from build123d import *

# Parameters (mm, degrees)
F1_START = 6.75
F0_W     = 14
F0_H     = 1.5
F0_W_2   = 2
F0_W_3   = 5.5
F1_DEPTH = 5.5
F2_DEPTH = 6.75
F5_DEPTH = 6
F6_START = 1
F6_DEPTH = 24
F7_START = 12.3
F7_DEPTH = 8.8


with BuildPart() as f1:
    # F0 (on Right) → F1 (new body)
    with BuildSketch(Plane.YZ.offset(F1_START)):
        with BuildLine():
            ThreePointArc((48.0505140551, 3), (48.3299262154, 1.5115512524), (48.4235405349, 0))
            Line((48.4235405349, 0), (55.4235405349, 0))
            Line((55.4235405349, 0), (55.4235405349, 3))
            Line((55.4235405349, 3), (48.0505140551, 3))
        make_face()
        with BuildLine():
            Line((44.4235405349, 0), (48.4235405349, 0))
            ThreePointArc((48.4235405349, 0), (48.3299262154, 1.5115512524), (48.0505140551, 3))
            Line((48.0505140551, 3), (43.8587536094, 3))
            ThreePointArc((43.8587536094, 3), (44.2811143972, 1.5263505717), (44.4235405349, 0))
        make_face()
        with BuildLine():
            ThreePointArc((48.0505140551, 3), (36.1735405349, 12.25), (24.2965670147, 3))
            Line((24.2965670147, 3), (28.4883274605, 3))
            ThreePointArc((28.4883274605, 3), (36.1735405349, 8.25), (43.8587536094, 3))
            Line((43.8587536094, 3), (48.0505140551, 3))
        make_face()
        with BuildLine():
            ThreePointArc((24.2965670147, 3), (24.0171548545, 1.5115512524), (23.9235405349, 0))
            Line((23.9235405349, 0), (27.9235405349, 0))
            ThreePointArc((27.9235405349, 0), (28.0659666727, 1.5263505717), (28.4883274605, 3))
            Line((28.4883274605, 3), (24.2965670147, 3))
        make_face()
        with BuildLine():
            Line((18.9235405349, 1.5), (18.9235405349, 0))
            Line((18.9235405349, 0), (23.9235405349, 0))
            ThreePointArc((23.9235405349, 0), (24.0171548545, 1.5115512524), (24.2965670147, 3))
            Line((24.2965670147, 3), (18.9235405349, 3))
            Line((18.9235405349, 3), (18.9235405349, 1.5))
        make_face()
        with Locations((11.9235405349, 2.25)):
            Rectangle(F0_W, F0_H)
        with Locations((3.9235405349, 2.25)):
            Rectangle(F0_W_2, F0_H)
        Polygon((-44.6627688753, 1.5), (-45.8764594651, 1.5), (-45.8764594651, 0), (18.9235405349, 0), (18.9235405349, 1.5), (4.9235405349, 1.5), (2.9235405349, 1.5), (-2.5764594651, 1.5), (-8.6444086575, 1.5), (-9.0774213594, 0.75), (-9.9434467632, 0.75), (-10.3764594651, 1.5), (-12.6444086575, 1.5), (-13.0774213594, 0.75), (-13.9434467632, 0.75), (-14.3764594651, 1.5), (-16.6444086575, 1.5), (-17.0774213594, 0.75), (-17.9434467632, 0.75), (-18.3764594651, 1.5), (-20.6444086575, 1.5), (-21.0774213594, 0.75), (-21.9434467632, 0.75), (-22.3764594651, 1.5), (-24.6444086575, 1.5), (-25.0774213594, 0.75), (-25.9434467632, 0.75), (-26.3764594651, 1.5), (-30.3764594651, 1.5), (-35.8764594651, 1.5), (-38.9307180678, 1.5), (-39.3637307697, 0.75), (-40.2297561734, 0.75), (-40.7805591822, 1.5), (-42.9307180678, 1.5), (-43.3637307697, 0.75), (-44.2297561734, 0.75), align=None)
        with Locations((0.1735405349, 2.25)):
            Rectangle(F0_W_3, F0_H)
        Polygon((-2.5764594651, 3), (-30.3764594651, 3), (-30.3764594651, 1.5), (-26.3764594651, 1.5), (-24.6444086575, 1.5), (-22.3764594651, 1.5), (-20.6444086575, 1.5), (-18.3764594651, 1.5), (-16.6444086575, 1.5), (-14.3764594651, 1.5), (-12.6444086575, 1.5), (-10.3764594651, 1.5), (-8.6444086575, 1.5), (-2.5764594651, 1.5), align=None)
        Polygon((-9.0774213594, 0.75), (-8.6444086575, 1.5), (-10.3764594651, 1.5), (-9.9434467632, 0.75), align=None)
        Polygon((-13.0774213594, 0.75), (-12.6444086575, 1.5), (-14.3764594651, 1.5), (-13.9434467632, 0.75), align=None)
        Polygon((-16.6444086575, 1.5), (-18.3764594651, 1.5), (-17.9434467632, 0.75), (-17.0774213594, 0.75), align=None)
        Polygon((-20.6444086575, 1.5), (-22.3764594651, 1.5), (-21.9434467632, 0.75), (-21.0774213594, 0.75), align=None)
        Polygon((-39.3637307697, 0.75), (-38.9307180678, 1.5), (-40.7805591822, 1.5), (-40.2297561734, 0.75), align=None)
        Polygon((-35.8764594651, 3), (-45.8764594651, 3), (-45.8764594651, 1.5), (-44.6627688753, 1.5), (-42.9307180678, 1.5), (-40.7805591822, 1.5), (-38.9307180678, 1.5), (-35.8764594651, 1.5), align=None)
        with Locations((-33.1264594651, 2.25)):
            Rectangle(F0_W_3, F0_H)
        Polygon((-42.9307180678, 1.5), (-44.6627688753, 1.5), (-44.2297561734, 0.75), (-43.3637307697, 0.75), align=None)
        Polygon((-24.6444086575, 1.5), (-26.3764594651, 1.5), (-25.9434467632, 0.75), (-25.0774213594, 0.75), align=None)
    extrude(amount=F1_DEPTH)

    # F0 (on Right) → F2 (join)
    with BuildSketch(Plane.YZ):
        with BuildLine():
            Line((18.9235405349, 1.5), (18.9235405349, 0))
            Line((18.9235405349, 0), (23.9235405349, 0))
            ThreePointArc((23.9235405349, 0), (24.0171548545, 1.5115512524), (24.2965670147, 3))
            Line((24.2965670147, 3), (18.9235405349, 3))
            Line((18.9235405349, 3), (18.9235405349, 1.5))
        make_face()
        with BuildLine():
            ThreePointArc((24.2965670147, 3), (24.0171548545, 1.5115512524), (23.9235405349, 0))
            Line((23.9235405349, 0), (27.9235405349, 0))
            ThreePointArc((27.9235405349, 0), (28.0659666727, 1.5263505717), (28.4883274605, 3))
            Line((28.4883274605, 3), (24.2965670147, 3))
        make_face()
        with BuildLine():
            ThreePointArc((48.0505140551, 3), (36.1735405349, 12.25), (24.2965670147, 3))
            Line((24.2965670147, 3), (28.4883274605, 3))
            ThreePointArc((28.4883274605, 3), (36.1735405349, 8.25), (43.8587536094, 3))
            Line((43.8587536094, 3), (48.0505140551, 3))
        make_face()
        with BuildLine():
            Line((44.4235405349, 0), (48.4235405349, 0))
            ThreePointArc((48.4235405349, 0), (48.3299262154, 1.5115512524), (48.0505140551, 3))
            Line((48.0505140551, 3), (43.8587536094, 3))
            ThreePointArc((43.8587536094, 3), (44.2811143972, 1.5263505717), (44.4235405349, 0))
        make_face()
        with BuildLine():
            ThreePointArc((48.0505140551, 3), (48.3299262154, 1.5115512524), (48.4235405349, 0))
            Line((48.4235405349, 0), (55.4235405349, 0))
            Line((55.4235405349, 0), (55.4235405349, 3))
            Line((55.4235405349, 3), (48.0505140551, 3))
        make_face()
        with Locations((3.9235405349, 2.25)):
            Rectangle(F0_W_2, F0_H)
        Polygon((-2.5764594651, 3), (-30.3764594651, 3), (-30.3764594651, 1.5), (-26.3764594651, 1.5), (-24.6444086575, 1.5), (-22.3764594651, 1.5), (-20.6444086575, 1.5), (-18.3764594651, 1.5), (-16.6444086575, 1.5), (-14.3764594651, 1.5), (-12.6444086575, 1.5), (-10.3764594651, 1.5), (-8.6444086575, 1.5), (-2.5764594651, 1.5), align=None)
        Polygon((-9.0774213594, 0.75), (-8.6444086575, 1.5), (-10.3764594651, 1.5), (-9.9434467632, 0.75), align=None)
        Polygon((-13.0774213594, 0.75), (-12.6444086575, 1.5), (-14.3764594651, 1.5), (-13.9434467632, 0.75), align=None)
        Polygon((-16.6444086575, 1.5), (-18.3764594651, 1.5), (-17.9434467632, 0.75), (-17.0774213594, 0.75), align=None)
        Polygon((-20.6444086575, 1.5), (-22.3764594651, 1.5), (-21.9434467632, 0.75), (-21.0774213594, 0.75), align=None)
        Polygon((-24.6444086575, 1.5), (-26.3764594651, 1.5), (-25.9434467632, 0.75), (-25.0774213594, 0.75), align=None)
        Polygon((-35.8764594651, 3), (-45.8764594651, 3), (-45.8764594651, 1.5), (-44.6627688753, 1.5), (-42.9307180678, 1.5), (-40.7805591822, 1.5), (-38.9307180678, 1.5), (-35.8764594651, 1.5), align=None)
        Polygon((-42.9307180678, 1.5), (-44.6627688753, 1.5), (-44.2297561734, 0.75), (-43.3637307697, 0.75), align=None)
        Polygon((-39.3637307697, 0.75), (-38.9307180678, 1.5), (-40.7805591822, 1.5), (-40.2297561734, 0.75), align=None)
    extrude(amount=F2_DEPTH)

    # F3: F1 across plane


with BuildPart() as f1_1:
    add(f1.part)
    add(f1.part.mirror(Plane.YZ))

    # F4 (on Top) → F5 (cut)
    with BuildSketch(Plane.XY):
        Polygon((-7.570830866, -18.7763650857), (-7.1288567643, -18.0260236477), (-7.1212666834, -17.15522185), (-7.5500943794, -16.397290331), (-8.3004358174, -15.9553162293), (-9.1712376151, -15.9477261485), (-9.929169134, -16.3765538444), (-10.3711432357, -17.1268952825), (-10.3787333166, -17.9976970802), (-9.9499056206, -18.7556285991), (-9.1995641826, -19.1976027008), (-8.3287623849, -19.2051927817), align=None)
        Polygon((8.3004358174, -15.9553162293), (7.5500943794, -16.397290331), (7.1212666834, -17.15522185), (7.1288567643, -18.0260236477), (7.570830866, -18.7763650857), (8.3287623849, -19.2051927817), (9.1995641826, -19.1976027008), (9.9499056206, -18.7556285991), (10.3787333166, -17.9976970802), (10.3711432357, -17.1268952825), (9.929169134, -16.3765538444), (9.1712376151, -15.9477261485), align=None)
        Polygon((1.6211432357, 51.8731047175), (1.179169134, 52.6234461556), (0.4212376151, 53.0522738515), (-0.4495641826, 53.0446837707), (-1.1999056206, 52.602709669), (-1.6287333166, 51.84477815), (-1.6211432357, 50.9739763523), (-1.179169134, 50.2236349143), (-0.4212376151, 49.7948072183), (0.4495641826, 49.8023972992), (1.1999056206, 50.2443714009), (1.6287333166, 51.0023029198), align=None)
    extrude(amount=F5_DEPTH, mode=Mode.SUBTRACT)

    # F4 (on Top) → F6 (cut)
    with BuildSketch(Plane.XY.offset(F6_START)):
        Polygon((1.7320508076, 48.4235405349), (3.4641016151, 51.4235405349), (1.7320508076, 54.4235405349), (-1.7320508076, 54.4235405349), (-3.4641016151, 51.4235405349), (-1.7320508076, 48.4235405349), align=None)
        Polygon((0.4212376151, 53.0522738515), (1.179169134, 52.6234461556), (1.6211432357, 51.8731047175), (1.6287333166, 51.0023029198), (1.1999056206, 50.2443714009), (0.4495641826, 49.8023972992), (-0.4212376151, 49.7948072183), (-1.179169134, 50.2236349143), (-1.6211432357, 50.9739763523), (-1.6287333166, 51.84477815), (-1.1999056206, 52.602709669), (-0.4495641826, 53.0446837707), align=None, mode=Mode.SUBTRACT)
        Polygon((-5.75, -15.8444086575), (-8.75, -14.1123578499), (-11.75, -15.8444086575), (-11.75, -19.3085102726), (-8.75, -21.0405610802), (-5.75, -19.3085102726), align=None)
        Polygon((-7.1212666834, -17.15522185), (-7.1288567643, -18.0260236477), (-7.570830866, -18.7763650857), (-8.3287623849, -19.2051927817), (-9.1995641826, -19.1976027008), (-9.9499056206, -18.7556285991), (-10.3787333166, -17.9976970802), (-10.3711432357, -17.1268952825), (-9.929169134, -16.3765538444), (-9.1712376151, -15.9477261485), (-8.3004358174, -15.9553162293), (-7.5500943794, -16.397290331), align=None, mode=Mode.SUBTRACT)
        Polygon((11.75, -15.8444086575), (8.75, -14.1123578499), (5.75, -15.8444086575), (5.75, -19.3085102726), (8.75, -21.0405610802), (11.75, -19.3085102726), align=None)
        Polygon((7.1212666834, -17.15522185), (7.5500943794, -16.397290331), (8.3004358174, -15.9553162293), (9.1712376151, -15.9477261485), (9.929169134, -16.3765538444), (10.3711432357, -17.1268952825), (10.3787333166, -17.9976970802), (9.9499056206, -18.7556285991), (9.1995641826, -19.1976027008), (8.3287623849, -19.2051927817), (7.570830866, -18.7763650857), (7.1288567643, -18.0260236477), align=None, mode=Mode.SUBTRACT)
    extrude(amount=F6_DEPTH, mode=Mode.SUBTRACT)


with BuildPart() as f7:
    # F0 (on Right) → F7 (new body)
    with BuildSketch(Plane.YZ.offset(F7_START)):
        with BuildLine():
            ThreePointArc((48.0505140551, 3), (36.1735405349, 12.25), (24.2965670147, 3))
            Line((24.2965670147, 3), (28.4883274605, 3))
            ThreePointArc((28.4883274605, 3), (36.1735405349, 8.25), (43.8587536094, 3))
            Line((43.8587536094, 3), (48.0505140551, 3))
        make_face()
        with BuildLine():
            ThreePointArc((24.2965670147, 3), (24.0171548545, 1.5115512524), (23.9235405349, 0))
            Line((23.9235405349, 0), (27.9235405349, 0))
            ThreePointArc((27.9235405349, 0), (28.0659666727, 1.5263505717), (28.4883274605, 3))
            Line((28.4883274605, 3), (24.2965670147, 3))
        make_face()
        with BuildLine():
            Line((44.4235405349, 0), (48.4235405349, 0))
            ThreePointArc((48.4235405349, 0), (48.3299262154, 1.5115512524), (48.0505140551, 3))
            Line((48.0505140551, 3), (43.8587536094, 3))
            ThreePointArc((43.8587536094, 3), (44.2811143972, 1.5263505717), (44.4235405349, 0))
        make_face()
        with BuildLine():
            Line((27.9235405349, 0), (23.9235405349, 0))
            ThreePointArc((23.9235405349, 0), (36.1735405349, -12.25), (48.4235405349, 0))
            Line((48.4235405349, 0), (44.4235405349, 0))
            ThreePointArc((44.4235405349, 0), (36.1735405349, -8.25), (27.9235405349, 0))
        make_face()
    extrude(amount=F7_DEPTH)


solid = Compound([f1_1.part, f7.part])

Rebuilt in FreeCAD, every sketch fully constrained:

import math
import FreeCAD as App
import Part
import Sketcher
from FreeCAD import Vector
Q = App.Units.Quantity


def add_polygon(sketch, points):
    """Adds a closed chain of lines whose ends are joined by coincident constraints."""
    first, n = sketch.GeometryCount, len(points)
    for a, b in zip(points, points[1:] + points[:1]):
        sketch.addGeometry(Part.LineSegment(App.Vector(*a, 0), App.Vector(*b, 0)), False)
    for i in range(n):
        sketch.addConstraint(Sketcher.Constraint("Coincident", first + i, 2, first + (i + 1) % n, 1))

doc = App.newDocument("Part")
body = doc.addObject("PartDesign::Body", "Body")

# Sketch on YZ plane
sketch1 = body.newObject("Sketcher::SketchObject", "Sketch")
sketch1.AttachmentSupport = (doc.getObject("YZ_Plane"), [""])
sketch1.MapMode = "FlatFace"
sketch1.AttachmentOffset = App.Placement(Vector(0, 0, 6.75), App.Rotation())
sketch1.addGeometry([
    Part.LineSegment(Vector(55.4, 0, 0), Vector(55.4, 3, 0)),  # 0
    Part.LineSegment(Vector(55.4, 3, 0), Vector(48.1, 3, 0)),  # 1
    Part.ArcOfCircle(Part.Circle(Vector(36.2, 0, 0), Vector(0, 0, 1), 12.2), math.radians(14), math.radians(166)),  # 2
    Part.LineSegment(Vector(24.3, 3, 0), Vector(-45.9, 3, 0)),  # 3
    Part.LineSegment(Vector(-45.9, 3, 0), Vector(-45.9, 0, 0)),  # 4
    Part.LineSegment(Vector(-45.9, 0, 0), Vector(27.9, 0, 0)),  # 5
    Part.ArcOfCircle(Part.Circle(Vector(36.2, 0, 0), Vector(0, 0, 1), 8.3), math.radians(159), math.radians(180)),  # 6
    Part.ArcOfCircle(Part.Circle(Vector(36.2, 0, 0), Vector(0, 0, 1), 8.2), math.radians(21), math.radians(159)),  # 7
    Part.ArcOfCircle(Part.Circle(Vector(36.2, 0, 0), Vector(0, 0, 1), 8.2), math.radians(0), math.radians(21)),  # 8
    Part.LineSegment(Vector(44.4, 0, 0), Vector(55.4, 0, 0)),  # 9
], False)
sketch1.addConstraint([
    Sketcher.Constraint("Coincident", 0, 2, 1, 1),
    Sketcher.Constraint("Coincident", 1, 2, 2, 1),
    Sketcher.Constraint("Coincident", 2, 2, 3, 1),
    Sketcher.Constraint("Coincident", 3, 2, 4, 1),
    Sketcher.Constraint("Coincident", 4, 2, 5, 1),
    Sketcher.Constraint("Coincident", 5, 2, 6, 2),
    Sketcher.Constraint("Tangent", 6, 1, 7, 2),
    Sketcher.Constraint("Tangent", 7, 1, 8, 2),
    Sketcher.Constraint("Coincident", 8, 1, 9, 1),
    Sketcher.Constraint("Coincident", 9, 2, 0, 1),
    Sketcher.Constraint("Vertical", 0),
    Sketcher.Constraint("Horizontal", 1),
    Sketcher.Constraint("Horizontal", 3),
    Sketcher.Constraint("Vertical", 4),
    Sketcher.Constraint("Horizontal", 5),
    Sketcher.Constraint("Horizontal", 9),
    Sketcher.Constraint("Coincident", 6, 3, 2, 3),
    Sketcher.Constraint("Coincident", 8, 3, 2, 3),
    Sketcher.Constraint("PointOnObject", 2, 3, -1),
    Sketcher.Constraint("PointOnObject", 4, 2, -1),
    Sketcher.Constraint("PointOnObject", 8, 1, -1),
    Sketcher.Constraint("Horizontal", 1, 2, 2, 2),
    Sketcher.Constraint("Horizontal", 3, 2, 6, 1),
    Sketcher.Constraint("Horizontal", 6, 1, 7, 1),
    Sketcher.Constraint("DistanceX", 9, 1, 9, 2, Q("11 mm")),
    Sketcher.Constraint("DistanceY", 0, 1, 0, 2, Q("3 mm")),
    Sketcher.Constraint("Radius", 2, Q("12.25 mm")),
    Sketcher.Constraint("Radius", 6, Q("8.25 mm")),
    Sketcher.Constraint("DistanceX", 5, 1, 5, 2, Q("73.8 mm")),
    Sketcher.Constraint("DistanceX", -1, 1, 2, 3, Q("36.173541 mm")),
])
pad1 = body.newObject("PartDesign::Pad", "Pad")
pad1.Profile = sketch1
pad1.Length = 5.5

# Sketch on YZ plane
sketch2 = body.newObject("Sketcher::SketchObject", "Sketch001")
sketch2.AttachmentSupport = (doc.getObject("YZ_Plane"), [""])
sketch2.MapMode = "FlatFace"
sketch2.addGeometry(Part.LineSegment(Vector(18.9, 0, 0), Vector(27.9, 0, 0)), False)  # 0
sketch2.addGeometry(Part.ArcOfCircle(Part.Circle(Vector(36.2, 0, 0), Vector(0, 0, 1), 8.3), math.radians(159), math.radians(180)), False)  # 1
sketch2.addGeometry(Part.ArcOfCircle(Part.Circle(Vector(36.2, 0, 0), Vector(0, 0, 1), 8.2), math.radians(21), math.radians(159)), False)  # 2
sketch2.addGeometry(Part.ArcOfCircle(Part.Circle(Vector(36.2, 0, 0), Vector(0, 0, 1), 8.2), math.radians(0), math.radians(21)), False)  # 3
sketch2.addGeometry(Part.LineSegment(Vector(44.4, 0, 0), Vector(55.4, 0, 0)), False)  # 4
sketch2.addGeometry(Part.LineSegment(Vector(55.4, 0, 0), Vector(55.4, 3, 0)), False)  # 5
sketch2.addGeometry(Part.LineSegment(Vector(55.4, 3, 0), Vector(48.1, 3, 0)), False)  # 6
sketch2.addGeometry(Part.ArcOfCircle(Part.Circle(Vector(36.2, 0, 0), Vector(0, 0, 1), 12.2), math.radians(14), math.radians(166)), False)  # 7
sketch2.addGeometry(Part.LineSegment(Vector(24.3, 3, 0), Vector(18.9, 3, 0)), False)  # 8
sketch2.addGeometry(Part.LineSegment(Vector(18.9, 3, 0), Vector(18.9, 0, 0)), False)  # 9
add_polygon(sketch2, [(2.9, 3), (2.9, 1.5), (4.9, 1.5), (4.9, 3)])  # lines 10-13
add_polygon(sketch2, [(-2.6, 3), (-30.4, 3), (-30.4, 1.5), (-26.4, 1.5), (-25.9, 0.8), (-25.1, 0.8), (-24.6, 1.5), (-22.4, 1.5), (-21.9, 0.8), (-21.1, 0.8), (-20.6, 1.5), (-18.4, 1.5), (-17.9, 0.8), (-17.1, 0.8), (-16.6, 1.5), (-14.4, 1.5), (-13.9, 0.8), (-13.1, 0.8), (-12.6, 1.5), (-10.4, 1.5), (-9.9, 0.8), (-9.1, 0.8), (-8.6, 1.5), (-2.6, 1.5)])  # lines 14-37
add_polygon(sketch2, [(-35.9, 3), (-45.9, 3), (-45.9, 1.5), (-44.7, 1.5), (-44.2, 0.8), (-43.4, 0.8), (-42.9, 1.5), (-40.8, 1.5), (-40.2, 0.8), (-39.4, 0.8), (-38.9, 1.5), (-35.9, 1.5)])  # lines 38-49
sketch2.addConstraint([
    Sketcher.Constraint("Coincident", 0, 2, 1, 2),
    Sketcher.Constraint("Tangent", 1, 1, 2, 2),
    Sketcher.Constraint("Tangent", 2, 1, 3, 2),
    Sketcher.Constraint("Coincident", 3, 1, 4, 1),
    Sketcher.Constraint("Coincident", 4, 2, 5, 1),
    Sketcher.Constraint("Coincident", 5, 2, 6, 1),
    Sketcher.Constraint("Coincident", 6, 2, 7, 1),
    Sketcher.Constraint("Coincident", 7, 2, 8, 1),
    Sketcher.Constraint("Coincident", 8, 2, 9, 1),
    Sketcher.Constraint("Coincident", 9, 2, 0, 1),
    Sketcher.Constraint("Horizontal", 0),
    Sketcher.Constraint("Horizontal", 4),
    Sketcher.Constraint("Vertical", 5),
    Sketcher.Constraint("Horizontal", 6),
    Sketcher.Constraint("Horizontal", 8),
    Sketcher.Constraint("Vertical", 9),
    Sketcher.Constraint("Vertical", 10),
    Sketcher.Constraint("Horizontal", 11),
    Sketcher.Constraint("Vertical", 12),
    Sketcher.Constraint("Horizontal", 13),
    Sketcher.Constraint("Horizontal", 14),
    Sketcher.Constraint("Vertical", 15),
    Sketcher.Constraint("Horizontal", 16),
    Sketcher.Constraint("Horizontal", 18),
    Sketcher.Constraint("Horizontal", 20),
    Sketcher.Constraint("Horizontal", 22),
    Sketcher.Constraint("Horizontal", 24),
    Sketcher.Constraint("Horizontal", 26),
    Sketcher.Constraint("Horizontal", 28),
    Sketcher.Constraint("Horizontal", 30),
    Sketcher.Constraint("Horizontal", 32),
    Sketcher.Constraint("Horizontal", 34),
    Sketcher.Constraint("Horizontal", 36),
    Sketcher.Constraint("Vertical", 37),
    Sketcher.Constraint("Horizontal", 38),
    Sketcher.Constraint("Vertical", 39),
    Sketcher.Constraint("Horizontal", 40),
    Sketcher.Constraint("Horizontal", 42),
    Sketcher.Constraint("Horizontal", 44),
    Sketcher.Constraint("Horizontal", 46),
    Sketcher.Constraint("Horizontal", 48),
    Sketcher.Constraint("Vertical", 49),
    Sketcher.Constraint("Coincident", 3, 3, 1, 3),
    Sketcher.Constraint("Coincident", 7, 3, 1, 3),
    Sketcher.Constraint("PointOnObject", 1, 3, -1),
    Sketcher.Constraint("PointOnObject", 0, 2, -1),
    Sketcher.Constraint("PointOnObject", 3, 1, -1),
    Sketcher.Constraint("Parallel", 17, 21),
    Sketcher.Constraint("Parallel", 19, 23),
    Sketcher.Constraint("Parallel", 21, 25),
    Sketcher.Constraint("Parallel", 23, 27),
    Sketcher.Constraint("Parallel", 25, 29),
    Sketcher.Constraint("Parallel", 27, 31),
    Sketcher.Constraint("Parallel", 29, 33),
    Sketcher.Constraint("Parallel", 31, 35),
    Sketcher.Constraint("Parallel", 33, 41),
    Sketcher.Constraint("Parallel", 35, 43),
    Sketcher.Constraint("Parallel", 43, 47),
    Sketcher.Constraint("Horizontal", 1, 1, 2, 1),
    Sketcher.Constraint("Horizontal", 2, 1, 5, 2),
    Sketcher.Constraint("Horizontal", 6, 2, 7, 2),
    Sketcher.Constraint("Horizontal", 8, 2, 12, 2),
    Sketcher.Constraint("Horizontal", 13, 2, 14, 2),
    Sketcher.Constraint("Horizontal", 11, 2, 15, 2),
    Sketcher.Constraint("Horizontal", 16, 2, 19, 2),
    Sketcher.Constraint("Horizontal", 18, 2, 21, 2),
    Sketcher.Constraint("Horizontal", 20, 2, 23, 2),
    Sketcher.Constraint("Horizontal", 22, 2, 25, 2),
    Sketcher.Constraint("Horizontal", 24, 2, 27, 2),
    Sketcher.Constraint("Horizontal", 26, 2, 29, 2),
    Sketcher.Constraint("Horizontal", 28, 2, 31, 2),
    Sketcher.Constraint("Horizontal", 30, 2, 33, 2),
    Sketcher.Constraint("Horizontal", 32, 2, 35, 2),
    Sketcher.Constraint("Horizontal", 37, 2, 38, 2),
    Sketcher.Constraint("Horizontal", 36, 2, 39, 2),
    Sketcher.Constraint("Horizontal", 34, 2, 41, 2),
    Sketcher.Constraint("Horizontal", 40, 2, 43, 2),
    Sketcher.Constraint("Horizontal", 42, 2, 45, 2),
    Sketcher.Constraint("Horizontal", 44, 2, 47, 2),
    Sketcher.Constraint("Equal", 18, 22),
    Sketcher.Constraint("Equal", 20, 24),
    Sketcher.Constraint("Equal", 22, 26),
    Sketcher.Constraint("Equal", 24, 28),
    Sketcher.Constraint("Equal", 26, 30),
    Sketcher.Constraint("Equal", 28, 32),
    Sketcher.Constraint("Equal", 30, 34),
    Sketcher.Constraint("Equal", 34, 42),
    Sketcher.Constraint("Equal", 42, 46),
    Sketcher.Constraint("Equal", 17, 19),
    Sketcher.Constraint("DistanceX", 0, 1, 0, 2, Q("9 mm")),
    Sketcher.Constraint("DistanceX", 4, 1, 4, 2, Q("11 mm")),
    Sketcher.Constraint("DistanceX", 11, 1, 11, 2, Q("2 mm")),
    Sketcher.Constraint("DistanceX", 16, 1, 16, 2, Q("4 mm")),
    Sketcher.Constraint("DistanceX", 38, 2, 38, 1, Q("10 mm")),
    Sketcher.Constraint("DistanceY", 5, 1, 5, 2, Q("3 mm")),
    Sketcher.Constraint("Angle", 17, Q("-60 deg")),
    Sketcher.Constraint("Radius", 1, Q("8.25 mm")),
    Sketcher.Constraint("Radius", 7, Q("12.25 mm")),
    Sketcher.Constraint("DistanceX", 14, 2, 14, 1, Q("27.8 mm")),
    Sketcher.Constraint("DistanceY", 10, 2, 10, 1, Q("1.5 mm")),
    Sketcher.Constraint("DistanceX", 10, 2, 8, 2, Q("16 mm")),
    Sketcher.Constraint("DistanceX", 16, 2, 20, 2, Q("4 mm")),
    Sketcher.Constraint("DistanceX", 41, 2, 45, 2, Q("4 mm")),
    Sketcher.Constraint("DistanceX", 14, 2, 13, 2, Q("33.3 mm")),
    Sketcher.Constraint("DistanceX", 38, 2, 14, 2, Q("15.5 mm")),
    Sketcher.Constraint("DistanceY", -1, 1, 17, 2, Q("0.75 mm")),
    Sketcher.Constraint("DistanceX", 20, 1, 20, 2, Q("2.267949 mm")),
    Sketcher.Constraint("DistanceX", 40, 1, 40, 2, Q("1.213691 mm")),
    Sketcher.Constraint("DistanceX", 44, 1, 44, 2, Q("2.150159 mm")),
    Sketcher.Constraint("DistanceX", -1, 1, 1, 3, Q("36.173541 mm")),
])
pad2 = body.newObject("PartDesign::Pad", "Pad001")
pad2.Profile = sketch2
pad2.Length = 6.75
body2 = doc.addObject("PartDesign::Body", "Body001")
doc.recompute()

body2.BaseFeature = body
doc.recompute()

mirroring = doc.addObject("Part::Mirroring", "Mirroring")
mirroring.Source = body
mirroring.Base = Vector(0, 0, 0)
mirroring.Normal = Vector(1, 0, 0)
body3 = doc.addObject("PartDesign::Body", "Body002")
body3.BaseFeature = mirroring
boolean = body2.newObject("PartDesign::Boolean", "Boolean")
boolean.Type = "Fuse"
boolean.addObjects([body3])
doc.recompute()

# Sketch on XY plane
sketch3 = body2.newObject("Sketcher::SketchObject", "Sketch002")
sketch3.AttachmentSupport = (doc.getObject("XY_Plane001"), [""])
sketch3.MapMode = "FlatFace"
add_polygon(sketch3, [(-7.6, -18.8), (-7.1, -18), (-7.1, -17.2), (-7.6, -16.4), (-8.3, -16), (-9.2, -15.9), (-9.9, -16.4), (-10.4, -17.1), (-10.4, -18), (-9.9, -18.8), (-9.2, -19.2), (-8.3, -19.2)])  # lines 0-11
add_polygon(sketch3, [(8.3, -16), (7.6, -16.4), (7.1, -17.2), (7.1, -18), (7.6, -18.8), (8.3, -19.2), (9.2, -19.2), (9.9, -18.8), (10.4, -18), (10.4, -17.1), (9.9, -16.4), (9.2, -15.9)])  # lines 12-23
add_polygon(sketch3, [(1.6, 51.9), (1.2, 52.6), (0.4, 53.1), (-0.4, 53), (-1.2, 52.6), (-1.6, 51.8), (-1.6, 51), (-1.2, 50.2), (-0.4, 49.8), (0.4, 49.8), (1.2, 50.2), (1.6, 51)])  # lines 24-35
sketch3.addConstraint([
    Sketcher.Constraint("Symmetric", 2, 2, 12, 2, -2),
    Sketcher.Constraint("Symmetric", 1, 2, 13, 2, -2),
    Sketcher.Constraint("Symmetric", 0, 2, 14, 2, -2),
    Sketcher.Constraint("Symmetric", 11, 2, 15, 2, -2),
    Sketcher.Constraint("Symmetric", 10, 2, 16, 2, -2),
    Sketcher.Constraint("Symmetric", 9, 2, 17, 2, -2),
    Sketcher.Constraint("Symmetric", 8, 2, 18, 2, -2),
    Sketcher.Constraint("Symmetric", 7, 2, 19, 2, -2),
    Sketcher.Constraint("Symmetric", 6, 2, 20, 2, -2),
    Sketcher.Constraint("Symmetric", 5, 2, 21, 2, -2),
    Sketcher.Constraint("Symmetric", 4, 2, 22, 2, -2),
    Sketcher.Constraint("Symmetric", 3, 2, 23, 2, -2),
    Sketcher.Constraint("Perpendicular", 0, 3),
    Sketcher.Constraint("Perpendicular", 1, 4),
    Sketcher.Constraint("Perpendicular", 2, 5),
    Sketcher.Constraint("Perpendicular", 3, 6),
    Sketcher.Constraint("Perpendicular", 4, 7),
    Sketcher.Constraint("Perpendicular", 5, 8),
    Sketcher.Constraint("Perpendicular", 6, 9),
    Sketcher.Constraint("Perpendicular", 7, 10),
    Sketcher.Constraint("Perpendicular", 8, 11),
    Sketcher.Constraint("Parallel", 21, 24),
    Sketcher.Constraint("Parallel", 22, 25),
    Sketcher.Constraint("Parallel", 23, 26),
    Sketcher.Constraint("Perpendicular", 24, 27),
    Sketcher.Constraint("Perpendicular", 25, 28),
    Sketcher.Constraint("Perpendicular", 26, 29),
    Sketcher.Constraint("Perpendicular", 27, 30),
    Sketcher.Constraint("Perpendicular", 28, 31),
    Sketcher.Constraint("Perpendicular", 29, 32),
    Sketcher.Constraint("Perpendicular", 30, 33),
    Sketcher.Constraint("Perpendicular", 31, 34),
    Sketcher.Constraint("Perpendicular", 32, 35),
    Sketcher.Constraint("Equal", 0, 1),
    Sketcher.Constraint("Equal", 1, 2),
    Sketcher.Constraint("Equal", 2, 3),
    Sketcher.Constraint("Equal", 3, 4),
    Sketcher.Constraint("Equal", 4, 5),
    Sketcher.Constraint("Equal", 5, 6),
    Sketcher.Constraint("Equal", 6, 7),
    Sketcher.Constraint("Equal", 7, 8),
    Sketcher.Constraint("Equal", 8, 9),
    Sketcher.Constraint("Equal", 23, 24),
    Sketcher.Constraint("Equal", 24, 25),
    Sketcher.Constraint("Equal", 25, 26),
    Sketcher.Constraint("Equal", 26, 27),
    Sketcher.Constraint("Equal", 27, 28),
    Sketcher.Constraint("Equal", 28, 29),
    Sketcher.Constraint("Equal", 29, 30),
    Sketcher.Constraint("Equal", 30, 31),
    Sketcher.Constraint("Equal", 31, 32),
    Sketcher.Constraint("Equal", 32, 33),
    Sketcher.Constraint("DistanceY", 22, 2, 25, 2, Q("69 mm")),
    Sketcher.Constraint("DistanceX", 25, 2, 22, 2, Q("8.75 mm")),
    Sketcher.Constraint("DistanceY", 0, 2, 1, 2, Q("0.870802 mm")),
    Sketcher.Constraint("DistanceY", 1, 2, -1, 1, Q("17.155222 mm")),
    Sketcher.Constraint("DistanceY", 2, 2, -1, 1, Q("16.39729 mm")),
    Sketcher.Constraint("DistanceX", 5, 2, -1, 1, Q("9.929169 mm")),
    Sketcher.Constraint("DistanceY", 8, 2, -1, 1, Q("18.755629 mm")),
    Sketcher.Constraint("DistanceX", 0, 2, 1, 2, Q("0.00759 mm")),
])
pocket1 = body2.newObject("PartDesign::Pocket", "Pocket")
pocket1.Profile = sketch3
pocket1.Length = 6
pocket1.Reversed = True

# Sketch on XY plane
sketch4 = body2.newObject("Sketcher::SketchObject", "Sketch003")
sketch4.AttachmentSupport = (doc.getObject("XY_Plane001"), [""])
sketch4.MapMode = "FlatFace"
sketch4.AttachmentOffset = App.Placement(Vector(0, 0, 1), App.Rotation())
add_polygon(sketch4, [(1.7, 48.4), (3.5, 51.4), (1.7, 54.4), (-1.7, 54.4), (-3.5, 51.4), (-1.7, 48.4)])  # lines 0-5
add_polygon(sketch4, [(-0.4, 53), (0.4, 53.1), (1.2, 52.6), (1.6, 51.9), (1.6, 51), (1.2, 50.2), (0.4, 49.8), (-0.4, 49.8), (-1.2, 50.2), (-1.6, 51), (-1.6, 51.8), (-1.2, 52.6)])  # lines 6-17
add_polygon(sketch4, [(-5.8, -15.8), (-8.8, -14.1), (-11.8, -15.8), (-11.8, -19.3), (-8.8, -21), (-5.8, -19.3)])  # lines 18-23
add_polygon(sketch4, [(-7.6, -16.4), (-7.1, -17.2), (-7.1, -18), (-7.6, -18.8), (-8.3, -19.2), (-9.2, -19.2), (-9.9, -18.8), (-10.4, -18), (-10.4, -17.1), (-9.9, -16.4), (-9.2, -15.9), (-8.3, -16)])  # lines 24-35
add_polygon(sketch4, [(11.8, -15.8), (8.8, -14.1), (5.8, -15.8), (5.8, -19.3), (8.8, -21), (11.8, -19.3)])  # lines 36-41
add_polygon(sketch4, [(7.1, -18), (7.1, -17.2), (7.6, -16.4), (8.3, -16), (9.2, -15.9), (9.9, -16.4), (10.4, -17.1), (10.4, -18), (9.9, -18.8), (9.2, -19.2), (8.3, -19.2), (7.6, -18.8)])  # lines 42-53
sketch4.addConstraint([
    Sketcher.Constraint("Horizontal", 2),
    Sketcher.Constraint("Horizontal", 5),
    Sketcher.Constraint("Vertical", 20),
    Sketcher.Constraint("Vertical", 23),
    Sketcher.Constraint("Vertical", 38),
    Sketcher.Constraint("Vertical", 41),
    Sketcher.Constraint("Symmetric", 0, 2, 3, 2, -2),
    Sketcher.Constraint("Symmetric", 18, 2, 36, 2, -2),
    Sketcher.Constraint("Symmetric", 23, 2, 37, 2, -2),
    Sketcher.Constraint("Symmetric", 21, 2, 39, 2, -2),
    Sketcher.Constraint("Symmetric", 20, 2, 40, 2, -2),
    Sketcher.Constraint("Symmetric", 24, 2, 42, 2, -2),
    Sketcher.Constraint("Symmetric", 35, 2, 43, 2, -2),
    Sketcher.Constraint("Symmetric", 34, 2, 44, 2, -2),
    Sketcher.Constraint("Symmetric", 33, 2, 45, 2, -2),
    Sketcher.Constraint("Symmetric", 32, 2, 46, 2, -2),
    Sketcher.Constraint("Symmetric", 31, 2, 47, 2, -2),
    Sketcher.Constraint("Symmetric", 30, 2, 48, 2, -2),
    Sketcher.Constraint("Symmetric", 29, 2, 49, 2, -2),
    Sketcher.Constraint("Symmetric", 28, 2, 50, 2, -2),
    Sketcher.Constraint("Symmetric", 27, 2, 51, 2, -2),
    Sketcher.Constraint("Symmetric", 26, 2, 52, 2, -2),
    Sketcher.Constraint("Symmetric", 25, 2, 53, 2, -2),
    Sketcher.Constraint("Parallel", 0, 3),
    Sketcher.Constraint("Parallel", 1, 4),
    Sketcher.Constraint("Perpendicular", 6, 9),
    Sketcher.Constraint("Perpendicular", 7, 10),
    Sketcher.Constraint("Perpendicular", 8, 11),
    Sketcher.Constraint("Perpendicular", 9, 12),
    Sketcher.Constraint("Perpendicular", 10, 13),
    Sketcher.Constraint("Perpendicular", 11, 14),
    Sketcher.Constraint("Perpendicular", 12, 15),
    Sketcher.Constraint("Perpendicular", 13, 16),
    Sketcher.Constraint("Perpendicular", 14, 17),
    Sketcher.Constraint("Perpendicular", 3, 18),
    Sketcher.Constraint("Perpendicular", 4, 19),
    Sketcher.Constraint("Parallel", 18, 21),
    Sketcher.Constraint("Parallel", 19, 22),
    Sketcher.Constraint("Perpendicular", 24, 27),
    Sketcher.Constraint("Perpendicular", 25, 28),
    Sketcher.Constraint("Perpendicular", 26, 29),
    Sketcher.Constraint("Perpendicular", 27, 30),
    Sketcher.Constraint("Perpendicular", 28, 31),
    Sketcher.Constraint("Perpendicular", 29, 32),
    Sketcher.Constraint("Perpendicular", 30, 33),
    Sketcher.Constraint("Perpendicular", 31, 34),
    Sketcher.Constraint("Perpendicular", 32, 35),
    Sketcher.Constraint("Parallel", 21, 36),
    Sketcher.Constraint("Parallel", 22, 37),
    Sketcher.Constraint("Parallel", 36, 39),
    Sketcher.Constraint("Parallel", 15, 42),
    Sketcher.Constraint("Parallel", 16, 43),
    Sketcher.Constraint("Parallel", 17, 44),
    Sketcher.Constraint("Horizontal", 20, 2, 22, 2),
    Sketcher.Constraint("Horizontal", 19, 2, 23, 2),
    Sketcher.Constraint("Vertical", 2, 2, 4, 2),
    Sketcher.Constraint("Equal", 5, 20),
    Sketcher.Constraint("Equal", 6, 7),
    Sketcher.Constraint("Equal", 7, 8),
    Sketcher.Constraint("Equal", 8, 9),
    Sketcher.Constraint("Equal", 9, 10),
    Sketcher.Constraint("Equal", 10, 11),
    Sketcher.Constraint("Equal", 11, 12),
    Sketcher.Constraint("Equal", 12, 13),
    Sketcher.Constraint("Equal", 13, 14),
    Sketcher.Constraint("Equal", 14, 15),
    Sketcher.Constraint("Equal", 4, 18),
    Sketcher.Constraint("Equal", 17, 24),
    Sketcher.Constraint("Equal", 24, 25),
    Sketcher.Constraint("Equal", 25, 26),
    Sketcher.Constraint("Equal", 26, 27),
    Sketcher.Constraint("Equal", 27, 28),
    Sketcher.Constraint("Equal", 28, 29),
    Sketcher.Constraint("Equal", 29, 30),
    Sketcher.Constraint("Equal", 30, 31),
    Sketcher.Constraint("Equal", 31, 32),
    Sketcher.Constraint("Equal", 32, 33),
    Sketcher.Constraint("Angle", 0, Q("60 deg")),
    Sketcher.Constraint("DistanceY", 0, 2, 1, 2, Q("3 mm")),
    Sketcher.Constraint("DistanceX", 23, 2, 36, 2, Q("14.5 mm")),
    Sketcher.Constraint("DistanceX", 2, 2, 2, 1, Q("3.464102 mm")),
    Sketcher.Constraint("DistanceY", 9, 2, 8, 2, Q("0.870802 mm")),
    Sketcher.Constraint("DistanceY", 18, 2, 4, 2, Q("62.535898 mm")),
    Sketcher.Constraint("DistanceY", -1, 1, 0, 2, Q("51.423541 mm")),
    Sketcher.Constraint("DistanceX", -1, 1, 7, 2, Q("1.179169 mm")),
    Sketcher.Constraint("DistanceY", -1, 1, 10, 2, Q("50.244371 mm")),
    Sketcher.Constraint("DistanceX", 13, 2, -1, 1, Q("1.179169 mm")),
    Sketcher.Constraint("DistanceY", -1, 1, 15, 2, Q("51.844778 mm")),
    Sketcher.Constraint("DistanceY", 24, 2, -1, 1, Q("17.155222 mm")),
    Sketcher.Constraint("DistanceX", 26, 2, -1, 1, Q("7.570831 mm")),
    Sketcher.Constraint("DistanceY", 8, 2, 7, 2, Q("0.750341 mm")),
])
pocket2 = body2.newObject("PartDesign::Pocket", "Pocket001")
pocket2.Profile = sketch4
pocket2.Length = 24
pocket2.Reversed = True
body4 = doc.addObject("PartDesign::Body", "Body003")

# Sketch on YZ plane
sketch5 = body4.newObject("Sketcher::SketchObject", "Sketch004")
sketch5.AttachmentSupport = (doc.getObject("YZ_Plane003"), [""])
sketch5.MapMode = "FlatFace"
sketch5.AttachmentOffset = App.Placement(Vector(0, 0, 12.3), App.Rotation())
sketch5.addGeometry([
    Part.ArcOfCircle(Part.Circle(Vector(36.2, 0, 0), Vector(0, 0, 1), 12.2), math.radians(14), math.radians(166)),  # 0
    Part.ArcOfCircle(Part.Circle(Vector(36.2, 0, 0), Vector(0, 0, 1), 12.3), math.radians(165.82), math.radians(180)),  # 1
    Part.ArcOfCircle(Part.Circle(Vector(36.2, 0, 0), Vector(0, 0, 1), 12.2), math.radians(180), math.radians(360)),  # 2
    Part.ArcOfCircle(Part.Circle(Vector(36.2, 0, 0), Vector(0, 0, 1), 12.2), math.radians(0), math.radians(14.18)),  # 3
    Part.ArcOfCircle(Part.Circle(Vector(36.2, 0, 0), Vector(0, 0, 1), 8.3), math.radians(159), math.radians(180)),  # 4
    Part.ArcOfCircle(Part.Circle(Vector(36.2, 0, 0), Vector(0, 0, 1), 8.2), math.radians(21), math.radians(159)),  # 5
    Part.ArcOfCircle(Part.Circle(Vector(36.2, 0, 0), Vector(0, 0, 1), 8.2), math.radians(0), math.radians(21)),  # 6
    Part.ArcOfCircle(Part.Circle(Vector(36.2, 0, 0), Vector(0, 0, 1), 8.2), math.radians(180), math.radians(360)),  # 7
], False)
sketch5.addConstraint([
    Sketcher.Constraint("Tangent", 0, 2, 1, 1),
    Sketcher.Constraint("Tangent", 1, 2, 2, 1),
    Sketcher.Constraint("Tangent", 2, 2, 3, 1),
    Sketcher.Constraint("Tangent", 3, 2, 0, 1),
    Sketcher.Constraint("Tangent", 4, 1, 5, 2),
    Sketcher.Constraint("Tangent", 5, 1, 6, 2),
    Sketcher.Constraint("Tangent", 6, 1, 7, 2),
    Sketcher.Constraint("Tangent", 7, 1, 4, 2),
    Sketcher.Constraint("Coincident", 4, 3, 0, 3),
    Sketcher.Constraint("Equal", 0, 1),
    Sketcher.Constraint("Equal", 4, 5),
    Sketcher.Constraint("PointOnObject", 0, 3, -1),
    Sketcher.Constraint("PointOnObject", 1, 2, -1),
    Sketcher.Constraint("PointOnObject", 2, 2, -1),
    Sketcher.Constraint("PointOnObject", 6, 1, -1),
    Sketcher.Constraint("PointOnObject", 7, 1, -1),
    Sketcher.Constraint("Horizontal", 0, 2, 3, 2),
    Sketcher.Constraint("Horizontal", 3, 2, 4, 1),
    Sketcher.Constraint("Horizontal", 4, 1, 5, 1),
    Sketcher.Constraint("Radius", 0, Q("12.25 mm")),
    Sketcher.Constraint("Radius", 4, Q("8.25 mm")),
    Sketcher.Constraint("DistanceY", -1, 1, 0, 2, Q("3 mm")),
    Sketcher.Constraint("DistanceX", -1, 1, 0, 3, Q("36.173541 mm")),
])
pad3 = body4.newObject("PartDesign::Pad", "Pad002")
pad3.Profile = sketch5
pad3.Length = 8.8
mirroring.Visibility = False

doc.recompute()
